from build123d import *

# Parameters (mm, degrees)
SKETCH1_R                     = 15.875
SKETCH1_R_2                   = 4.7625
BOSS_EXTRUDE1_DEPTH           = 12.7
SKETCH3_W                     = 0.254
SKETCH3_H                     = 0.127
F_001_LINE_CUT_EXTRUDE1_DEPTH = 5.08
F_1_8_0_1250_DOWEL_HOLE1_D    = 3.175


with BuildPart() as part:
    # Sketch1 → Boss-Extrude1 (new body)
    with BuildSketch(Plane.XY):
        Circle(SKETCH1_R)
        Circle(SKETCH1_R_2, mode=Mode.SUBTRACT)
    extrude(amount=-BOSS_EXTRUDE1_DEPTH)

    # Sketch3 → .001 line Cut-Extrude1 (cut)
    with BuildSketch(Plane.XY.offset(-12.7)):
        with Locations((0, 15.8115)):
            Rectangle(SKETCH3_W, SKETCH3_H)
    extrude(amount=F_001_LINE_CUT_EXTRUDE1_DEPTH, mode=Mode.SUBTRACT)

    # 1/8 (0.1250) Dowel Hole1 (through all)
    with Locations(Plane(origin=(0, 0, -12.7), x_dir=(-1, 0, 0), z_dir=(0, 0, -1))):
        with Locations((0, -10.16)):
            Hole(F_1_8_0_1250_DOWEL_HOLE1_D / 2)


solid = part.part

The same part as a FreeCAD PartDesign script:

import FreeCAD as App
import Part
import Sketcher
from FreeCAD import Vector
Q = App.Units.Quantity

doc = App.newDocument("Part")
body = doc.addObject("PartDesign::Body", "Body")

sketch1 = body.newObject("Sketcher::SketchObject", "Sketch")
sketch1.AttachmentSupport = (doc.getObject("XY_Plane"), [""])
sketch1.MapMode = "FlatFace"
sketch1.addGeometry([
    Part.Circle(Vector(0, 0, 0), Vector(0, 0, 1), 15.9),
    Part.Circle(Vector(0, 0, 0), Vector(0, 0, 1), 4.8),
], False)
sketch1.addConstraint([
    Sketcher.Constraint("Coincident", 0, 3, -1, 1),
    Sketcher.Constraint("Coincident", 1, 3, -1, 1),
    Sketcher.Constraint("Diameter", 0, Q("1.25 in")),
    Sketcher.Constraint("Diameter", 1, Q("0.375 in")),
])
pad1 = body.newObject("PartDesign::Pad", "Pad")
pad1.Profile = sketch1
pad1.Length = Q("0.5 in")
pad1.Reversed = True

sketch2 = body.newObject("Sketcher::SketchObject", "Sketch001")
sketch2.AttachmentSupport = (doc.getObject("XY_Plane"), [""])
sketch2.MapMode = "FlatFace"
sketch2.AttachmentOffset = App.Placement(Vector(0, 0, -0.5 * 25.4), App.Rotation())
sketch2.addGeometry([
    Part.LineSegment(Vector(-0.13, 15.88, 0), Vector(-0.13, 15.75, 0)),
    Part.LineSegment(Vector(-0.13, 15.75, 0), Vector(0.13, 15.75, 0)),
    Part.LineSegment(Vector(0.13, 15.75, 0), Vector(0.13, 15.88, 0)),
    Part.LineSegment(Vector(0.13, 15.88, 0), Vector(-0.13, 15.88, 0)),
], False)
sketch2.addConstraint([
    Sketcher.Constraint("Coincident", 0, 2, 1, 1),
    Sketcher.Constraint("Coincident", 1, 2, 2, 1),
    Sketcher.Constraint("Coincident", 2, 2, 3, 1),
    Sketcher.Constraint("Coincident", 3, 2, 0, 1),
    Sketcher.Constraint("Vertical", 0),
    Sketcher.Constraint("Horizontal", 1),
    Sketcher.Constraint("Vertical", 2),
    Sketcher.Constraint("Horizontal", 3),
    Sketcher.Constraint("DistanceX", 1, 1, 1, 2, Q("0.01 in")),
    Sketcher.Constraint("DistanceY", 0, 2, 0, 1, Q("0.005 in")),
    Sketcher.Constraint("DistanceY", -1, 1, 0, 2, Q("0.62 in")),
    Sketcher.Constraint("DistanceX", 0, 2, -1, 1, Q("0.005 in")),
])
pocket1 = body.newObject("PartDesign::Pocket", "Pocket")
pocket1.Profile = sketch2
pocket1.Length = Q("0.2 in")
pocket1.Reversed = True

sketch3 = body.newObject("Sketcher::SketchObject", "Sketch002")
sketch3.AttachmentSupport = (doc.getObject("XY_Plane"), [""])
sketch3.MapMode = "FlatFace"
sketch3.AttachmentOffset = App.Placement(Vector(0, 0, -0.5 * 25.4), App.Rotation())
sketch3.addGeometry(Part.Circle(Vector(0, -10.2, 0), Vector(0, 0, 1), 1.6), False)
sketch3.addConstraint([
    Sketcher.Constraint("PointOnObject", 0, 3, -2),
    Sketcher.Constraint("Diameter", 0, Q("0.125 in")),
    Sketcher.Constraint("DistanceY", 0, 3, -1, 1, Q("0.4 in")),
])
doc.recompute()
hole = body.newObject("PartDesign::Hole", "Hole")
hole.Profile = sketch3
hole.ThreadType = "None"
hole.Diameter = Q("0.125 in")
hole.DepthType = "ThroughAll"
hole.Reversed = True

doc.recompute()
